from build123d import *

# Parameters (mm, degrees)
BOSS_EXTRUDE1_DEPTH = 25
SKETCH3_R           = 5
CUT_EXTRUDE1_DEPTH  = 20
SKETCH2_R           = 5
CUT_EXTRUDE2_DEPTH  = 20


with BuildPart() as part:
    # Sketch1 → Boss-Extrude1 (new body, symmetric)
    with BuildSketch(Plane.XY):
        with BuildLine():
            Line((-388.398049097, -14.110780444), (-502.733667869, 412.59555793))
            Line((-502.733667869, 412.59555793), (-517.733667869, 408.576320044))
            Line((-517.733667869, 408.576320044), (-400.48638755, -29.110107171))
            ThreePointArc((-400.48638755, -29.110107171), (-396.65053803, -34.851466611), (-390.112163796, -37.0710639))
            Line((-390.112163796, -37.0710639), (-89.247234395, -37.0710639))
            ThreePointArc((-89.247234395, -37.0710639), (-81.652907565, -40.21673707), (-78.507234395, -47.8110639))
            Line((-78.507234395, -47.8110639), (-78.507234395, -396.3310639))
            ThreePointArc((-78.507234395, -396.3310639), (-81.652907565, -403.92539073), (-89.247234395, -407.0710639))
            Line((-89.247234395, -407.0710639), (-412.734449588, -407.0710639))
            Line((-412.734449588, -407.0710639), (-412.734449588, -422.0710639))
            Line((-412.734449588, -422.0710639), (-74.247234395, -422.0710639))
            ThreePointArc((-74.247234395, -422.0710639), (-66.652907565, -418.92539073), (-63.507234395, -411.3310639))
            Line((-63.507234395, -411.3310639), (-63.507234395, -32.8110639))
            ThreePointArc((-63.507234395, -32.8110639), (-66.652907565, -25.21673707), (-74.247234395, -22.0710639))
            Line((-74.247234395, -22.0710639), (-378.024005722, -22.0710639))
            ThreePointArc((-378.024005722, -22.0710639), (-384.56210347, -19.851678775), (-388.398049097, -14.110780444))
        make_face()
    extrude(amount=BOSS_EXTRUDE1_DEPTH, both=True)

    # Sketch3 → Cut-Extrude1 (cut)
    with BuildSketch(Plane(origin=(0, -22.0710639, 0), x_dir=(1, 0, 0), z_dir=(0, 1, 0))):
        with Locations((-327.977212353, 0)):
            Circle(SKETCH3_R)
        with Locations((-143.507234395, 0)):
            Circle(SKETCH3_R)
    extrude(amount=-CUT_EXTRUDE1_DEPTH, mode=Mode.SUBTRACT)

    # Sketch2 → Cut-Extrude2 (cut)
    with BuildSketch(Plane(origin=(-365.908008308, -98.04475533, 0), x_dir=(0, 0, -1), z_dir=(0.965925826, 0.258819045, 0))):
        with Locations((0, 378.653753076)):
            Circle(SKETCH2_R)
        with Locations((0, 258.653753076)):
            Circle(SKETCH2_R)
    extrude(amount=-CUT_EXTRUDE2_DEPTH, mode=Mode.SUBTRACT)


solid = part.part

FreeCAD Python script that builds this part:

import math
import FreeCAD as App
import Part
import Sketcher
from FreeCAD import Vector
Q = App.Units.Quantity

doc = App.newDocument("Part")
body = doc.addObject("PartDesign::Body", "Body")

sketch1 = doc.addObject("Sketcher::SketchObject", "Sketch")
body.addObject(sketch1)
sketch1.AttachmentSupport = (doc.XY_Plane, [""])
sketch1.MapMode = "FlatFace"
sketch1.addGeometry(Part.LineSegment(Vector(-388, -14, 0), Vector(-503, 413, 0)), False)
sketch1.addGeometry(Part.LineSegment(Vector(-503, 413, 0), Vector(-518, 409, 0)), False)
sketch1.addGeometry(Part.LineSegment(Vector(-518, 409, 0), Vector(-400, -29, 0)), False)
sketch1.addGeometry(Part.ArcOfCircle(Part.Circle(Vector(-390, -26, 0), Vector(0, 0, 1), 11), math.radians(-165), math.radians(-90)), False)
sketch1.addGeometry(Part.LineSegment(Vector(-390, -37, 0), Vector(-89, -37, 0)), False)
sketch1.addGeometry(Part.ArcOfCircle(Part.Circle(Vector(-89, -48, 0), Vector(0, 0, 1), 11), math.radians(0), math.radians(90)), False)
sketch1.addGeometry(Part.LineSegment(Vector(-79, -48, 0), Vector(-79, -396, 0)), False)
sketch1.addGeometry(Part.ArcOfCircle(Part.Circle(Vector(-89, -396, 0), Vector(0, 0, 1), 11), math.radians(-90), math.radians(0)), False)
sketch1.addGeometry(Part.LineSegment(Vector(-89, -407, 0), Vector(-413, -407, 0)), False)
sketch1.addGeometry(Part.LineSegment(Vector(-413, -407, 0), Vector(-413, -422, 0)), False)
sketch1.addGeometry(Part.LineSegment(Vector(-413, -422, 0), Vector(-74, -422, 0)), False)
sketch1.addGeometry(Part.ArcOfCircle(Part.Circle(Vector(-74, -411, 0), Vector(0, 0, 1), 11), math.radians(-90), math.radians(0)), False)
sketch1.addGeometry(Part.LineSegment(Vector(-64, -411, 0), Vector(-64, -33, 0)), False)
sketch1.addGeometry(Part.ArcOfCircle(Part.Circle(Vector(-74, -33, 0), Vector(0, 0, 1), 11), math.radians(0), math.radians(90)), False)
sketch1.addGeometry(Part.LineSegment(Vector(-74, -22, 0), Vector(-378, -22, 0)), False)
sketch1.addGeometry(Part.ArcOfCircle(Part.Circle(Vector(-378, -11, 0), Vector(0, 0, 1), 11), math.radians(-165), math.radians(-90)), False)
sketch1.addConstraint(Sketcher.Constraint("Coincident", 0, 2, 1, 1))
sketch1.addConstraint(Sketcher.Constraint("Coincident", 1, 2, 2, 1))
sketch1.addConstraint(Sketcher.Constraint("Tangent", 2, 2, 3, 1))
sketch1.addConstraint(Sketcher.Constraint("Tangent", 3, 2, 4, 1))
sketch1.addConstraint(Sketcher.Constraint("Tangent", 4, 2, 5, 2))
sketch1.addConstraint(Sketcher.Constraint("Tangent", 5, 1, 6, 1))
sketch1.addConstraint(Sketcher.Constraint("Tangent", 6, 2, 7, 2))
sketch1.addConstraint(Sketcher.Constraint("Tangent", 7, 1, 8, 1))
sketch1.addConstraint(Sketcher.Constraint("Coincident", 8, 2, 9, 1))
sketch1.addConstraint(Sketcher.Constraint("Coincident", 9, 2, 10, 1))
sketch1.addConstraint(Sketcher.Constraint("Tangent", 10, 2, 11, 1))
sketch1.addConstraint(Sketcher.Constraint("Tangent", 11, 2, 12, 1))
sketch1.addConstraint(Sketcher.Constraint("Tangent", 12, 2, 13, 1))
sketch1.addConstraint(Sketcher.Constraint("Tangent", 13, 2, 14, 1))
sketch1.addConstraint(Sketcher.Constraint("Tangent", 14, 2, 15, 2))
sketch1.addConstraint(Sketcher.Constraint("Tangent", 15, 1, 0, 1))
sketch1.addConstraint(Sketcher.Constraint("Horizontal", 4))
sketch1.addConstraint(Sketcher.Constraint("Vertical", 6))
sketch1.addConstraint(Sketcher.Constraint("Horizontal", 8))
sketch1.addConstraint(Sketcher.Constraint("Vertical", 9))
sketch1.addConstraint(Sketcher.Constraint("Horizontal", 10))
sketch1.addConstraint(Sketcher.Constraint("Vertical", 12))
sketch1.addConstraint(Sketcher.Constraint("Horizontal", 14))
sketch1.addConstraint(Sketcher.Constraint("Equal", 3, 5))
sketch1.addConstraint(Sketcher.Constraint("Equal", 5, 7))
sketch1.addConstraint(Sketcher.Constraint("Equal", 7, 11))
sketch1.addConstraint(Sketcher.Constraint("Equal", 11, 13))
sketch1.addConstraint(Sketcher.Constraint("Equal", 13, 15))
sketch1.addConstraint(Sketcher.Constraint("Perpendicular", 0, 1))
sketch1.addConstraint(Sketcher.Constraint("DistanceY", 9, 2, 9, 1, Q("15 mm")))
sketch1.addConstraint(Sketcher.Constraint("Angle", 0, Q("105 deg")))
sketch1.addConstraint(Sketcher.Constraint("Radius", 3, Q("10.74 mm")))
sketch1.addConstraint(Sketcher.Constraint("DistanceY", 7, 3, 3, 3, Q("370 mm")))
sketch1.addConstraint(Sketcher.Constraint("DistanceX", 7, 3, 11, 3, Q("15 mm")))
sketch1.addConstraint(Sketcher.Constraint("DistanceY", 5, 3, 13, 3, Q("15 mm")))
sketch1.addConstraint(Sketcher.Constraint("DistanceX", 1, 2, 0, 2, Q("15 mm")))
sketch1.addConstraint(Sketcher.Constraint("DistanceX", 4, 1, 4, 2, Q("300.864929 mm")))
sketch1.addConstraint(Sketcher.Constraint("DistanceX", 14, 2, 14, 1, Q("303.776771 mm")))
sketch1.addConstraint(Sketcher.Constraint("Distance", 0, Q("441.758908 mm")))
sketch1.addConstraint(Sketcher.Constraint("DistanceX", 8, 2, 8, 1, Q("323.487215 mm")))
sketch1.addConstraint(Sketcher.Constraint("DistanceY", -1, 1, 1, 2, Q("408.57632 mm")))
sketch1.addConstraint(Sketcher.Constraint("DistanceX", 8, 2, -1, 1, Q("412.73445 mm")))
pad1 = doc.addObject("PartDesign::Pad", "Pad")
body.addObject(pad1)
pad1.Profile = sketch1
pad1.Length = 50
pad1.Midplane = True

sketch2 = doc.addObject("Sketcher::SketchObject", "Sketch001")
body.addObject(sketch2)
sketch2.AttachmentSupport = (doc.XZ_Plane, [""])
sketch2.MapMode = "FlatFace"
sketch2.AttachmentOffset = App.Placement(Vector(0, 0, 22.071064), App.Rotation())
sketch2.addGeometry(Part.Circle(Vector(-328, 0, 0), Vector(0, 0, 1), 5), False)
sketch2.addGeometry(Part.Circle(Vector(-144, 0, 0), Vector(0, 0, 1), 5), False)
sketch2.addConstraint(Sketcher.Constraint("Equal", 0, 1))
sketch2.addConstraint(Sketcher.Constraint("PointOnObject", 0, 3, -1))
sketch2.addConstraint(Sketcher.Constraint("PointOnObject", 1, 3, -1))
sketch2.addConstraint(Sketcher.Constraint("Diameter", 0, Q("10 mm")))
sketch2.addConstraint(Sketcher.Constraint("DistanceX", 0, 3, -1, 1, Q("327.977212 mm")))
sketch2.addConstraint(Sketcher.Constraint("DistanceX", 1, 3, -1, 1, Q("143.507234 mm")))
pocket1 = doc.addObject("PartDesign::Pocket", "Pocket")
body.addObject(pocket1)
pocket1.Profile = sketch2
pocket1.Length = 20
pocket1.Reversed = True

sketch3 = doc.addObject("Sketcher::SketchObject", "Sketch002")
body.addObject(sketch3)
sketch3.Placement = App.Placement(Vector(-365.908008, -98.044755, 0), App.Rotation(Vector(0, 0, -1), Vector(-0.258819045, 0.965925826, 0), Vector(0.965925826, 0.258819045, 0), "ZXY"))
sketch3.addGeometry(Part.Circle(Vector(0, 379, 0), Vector(0, 0, 1), 5), False)
sketch3.addGeometry(Part.Circle(Vector(0, 259, 0), Vector(0, 0, 1), 5), False)
sketch3.addConstraint(Sketcher.Constraint("Equal", 0, 1))
sketch3.addConstraint(Sketcher.Constraint("PointOnObject", 0, 3, -2))
sketch3.addConstraint(Sketcher.Constraint("PointOnObject", 1, 3, -2))
sketch3.addConstraint(Sketcher.Constraint("Diameter", 0, Q("10 mm")))
sketch3.addConstraint(Sketcher.Constraint("DistanceY", 1, 3, 0, 3, Q("120 mm")))
sketch3.addConstraint(Sketcher.Constraint("DistanceY", -1, 1, 0, 3, Q("378.653753 mm")))
pocket2 = doc.addObject("PartDesign::Pocket", "Pocket001")
body.addObject(pocket2)
pocket2.Profile = sketch3
pocket2.Length = 20

doc.recompute()
